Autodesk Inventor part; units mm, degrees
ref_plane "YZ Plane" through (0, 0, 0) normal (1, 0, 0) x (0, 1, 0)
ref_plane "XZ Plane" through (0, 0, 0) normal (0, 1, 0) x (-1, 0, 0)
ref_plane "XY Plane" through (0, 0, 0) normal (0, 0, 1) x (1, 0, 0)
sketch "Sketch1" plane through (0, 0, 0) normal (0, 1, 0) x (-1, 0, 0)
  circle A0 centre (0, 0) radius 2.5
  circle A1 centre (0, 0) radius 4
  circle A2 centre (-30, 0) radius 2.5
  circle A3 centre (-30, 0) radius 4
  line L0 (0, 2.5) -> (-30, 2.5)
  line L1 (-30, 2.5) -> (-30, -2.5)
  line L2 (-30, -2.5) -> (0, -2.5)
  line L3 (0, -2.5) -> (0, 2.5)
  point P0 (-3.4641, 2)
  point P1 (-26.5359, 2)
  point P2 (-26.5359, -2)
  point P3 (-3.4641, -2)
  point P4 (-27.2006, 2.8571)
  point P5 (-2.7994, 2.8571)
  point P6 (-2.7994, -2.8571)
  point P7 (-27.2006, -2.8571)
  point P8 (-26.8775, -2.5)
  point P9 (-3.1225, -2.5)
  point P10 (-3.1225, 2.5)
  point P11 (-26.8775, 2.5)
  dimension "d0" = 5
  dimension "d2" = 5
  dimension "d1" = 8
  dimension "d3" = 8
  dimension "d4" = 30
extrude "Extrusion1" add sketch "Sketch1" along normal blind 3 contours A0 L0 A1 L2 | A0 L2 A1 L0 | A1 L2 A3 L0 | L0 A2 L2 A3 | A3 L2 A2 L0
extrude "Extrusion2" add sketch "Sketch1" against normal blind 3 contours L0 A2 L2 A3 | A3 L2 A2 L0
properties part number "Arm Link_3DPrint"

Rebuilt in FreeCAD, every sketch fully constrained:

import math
import FreeCAD as App
import Part
import Sketcher

doc = App.newDocument("Part")
params = doc.addObject("Spreadsheet::Sheet", "Params")
for row, (alias, value) in enumerate([
    ("sketch1_diameter", "5 mm"),
    ("sketch1_radius", "4 mm"),
    ("pad1_length", "3 mm"),
    ("sketch2_diameter", "8 mm"),
    ("sketch2_diameter2", "5 mm"),
    ("pad2_length", "3 mm"),
], start=1):
    params.set(f"A{row}", alias)
    params.set(f"B{row}", "=" + value)
    params.setAlias(f"B{row}", alias)

body = doc.addObject("PartDesign::Body", "Body")

sketch1 = body.newObject("Sketcher::SketchObject", "Sketch")
sketch1.AttachmentSupport = (doc.getObject("XZ_Plane"), [""])
sketch1.MapMode = "FlatFace"
sketch1.addGeometry([
    Part.LineSegment(App.Vector(3.1, 2.5, 0), App.Vector(26.9, 2.5, 0)),
    Part.ArcOfCircle(Part.Circle(App.Vector(30, 0, 0), App.Vector(0, 0, 1), 4), math.radians(-141), math.radians(141)),
    Part.LineSegment(App.Vector(26.9, -2.5, 0), App.Vector(3.1, -2.5, 0)),
    Part.ArcOfCircle(Part.Circle(App.Vector(0, 0, 0), App.Vector(0, 0, 1), 4), math.radians(39), math.radians(321)),
    Part.Circle(App.Vector(0, 0, 0), App.Vector(0, 0, 1), 2.5),
    Part.Circle(App.Vector(30, 0, 0), App.Vector(0, 0, 1), 2.5),
], False)
sketch1.addConstraint([
    Sketcher.Constraint("Coincident", 0, 2, 1, 2),
    Sketcher.Constraint("Coincident", 1, 1, 2, 1),
    Sketcher.Constraint("Coincident", 2, 2, 3, 2),
    Sketcher.Constraint("Coincident", 3, 1, 0, 1),
    Sketcher.Constraint("Horizontal", 0),
    Sketcher.Constraint("Horizontal", 2),
    Sketcher.Constraint("Coincident", 3, 3, -1, 1),
    Sketcher.Constraint("Coincident", 4, 3, -1, 1),
    Sketcher.Constraint("Coincident", 5, 3, 1, 3),
    Sketcher.Constraint("Equal", 1, 3),
    Sketcher.Constraint("Equal", 4, 5),
    Sketcher.Constraint("Symmetric", 0, 2, 1, 1, -1),
    Sketcher.Constraint("Diameter", 4, 5.0),
    Sketcher.Constraint("Radius", 1, 4.0),
    Sketcher.Constraint("DistanceX", -1, 1, 1, 3, 30.0),
    Sketcher.Constraint("DistanceY", 1, 1, 0, 2, 5.0),
])
sketch1.setExpression("Constraints[12]", "Params.sketch1_diameter")
sketch1.setExpression("Constraints[13]", "Params.sketch1_radius")
pad1 = body.newObject("PartDesign::Pad", "Pad")
pad1.Profile = sketch1
pad1.setExpression("Length", "Params.pad1_length")
pad1.Reversed = True

sketch2 = body.newObject("Sketcher::SketchObject", "Sketch001")
sketch2.AttachmentSupport = (doc.getObject("XZ_Plane"), [""])
sketch2.MapMode = "FlatFace"
sketch2.addGeometry([
    Part.Circle(App.Vector(30, 0, 0), App.Vector(0, 0, 1), 4),
    Part.Circle(App.Vector(30, 0, 0), App.Vector(0, 0, 1), 2.5),
], False)
sketch2.addConstraint([
    Sketcher.Constraint("Coincident", 1, 3, 0, 3),
    Sketcher.Constraint("PointOnObject", 0, 3, -1),
    Sketcher.Constraint("Diameter", 0, 8.0),
    Sketcher.Constraint("Diameter", 1, 5.0),
    Sketcher.Constraint("DistanceX", -1, 1, 0, 3, 30.0),
])
sketch2.setExpression("Constraints[2]", "Params.sketch2_diameter")
sketch2.setExpression("Constraints[3]", "Params.sketch2_diameter2")
pad2 = body.newObject("PartDesign::Pad", "Pad001")
pad2.Profile = sketch2
pad2.setExpression("Length", "Params.pad2_length")

doc.recompute()
